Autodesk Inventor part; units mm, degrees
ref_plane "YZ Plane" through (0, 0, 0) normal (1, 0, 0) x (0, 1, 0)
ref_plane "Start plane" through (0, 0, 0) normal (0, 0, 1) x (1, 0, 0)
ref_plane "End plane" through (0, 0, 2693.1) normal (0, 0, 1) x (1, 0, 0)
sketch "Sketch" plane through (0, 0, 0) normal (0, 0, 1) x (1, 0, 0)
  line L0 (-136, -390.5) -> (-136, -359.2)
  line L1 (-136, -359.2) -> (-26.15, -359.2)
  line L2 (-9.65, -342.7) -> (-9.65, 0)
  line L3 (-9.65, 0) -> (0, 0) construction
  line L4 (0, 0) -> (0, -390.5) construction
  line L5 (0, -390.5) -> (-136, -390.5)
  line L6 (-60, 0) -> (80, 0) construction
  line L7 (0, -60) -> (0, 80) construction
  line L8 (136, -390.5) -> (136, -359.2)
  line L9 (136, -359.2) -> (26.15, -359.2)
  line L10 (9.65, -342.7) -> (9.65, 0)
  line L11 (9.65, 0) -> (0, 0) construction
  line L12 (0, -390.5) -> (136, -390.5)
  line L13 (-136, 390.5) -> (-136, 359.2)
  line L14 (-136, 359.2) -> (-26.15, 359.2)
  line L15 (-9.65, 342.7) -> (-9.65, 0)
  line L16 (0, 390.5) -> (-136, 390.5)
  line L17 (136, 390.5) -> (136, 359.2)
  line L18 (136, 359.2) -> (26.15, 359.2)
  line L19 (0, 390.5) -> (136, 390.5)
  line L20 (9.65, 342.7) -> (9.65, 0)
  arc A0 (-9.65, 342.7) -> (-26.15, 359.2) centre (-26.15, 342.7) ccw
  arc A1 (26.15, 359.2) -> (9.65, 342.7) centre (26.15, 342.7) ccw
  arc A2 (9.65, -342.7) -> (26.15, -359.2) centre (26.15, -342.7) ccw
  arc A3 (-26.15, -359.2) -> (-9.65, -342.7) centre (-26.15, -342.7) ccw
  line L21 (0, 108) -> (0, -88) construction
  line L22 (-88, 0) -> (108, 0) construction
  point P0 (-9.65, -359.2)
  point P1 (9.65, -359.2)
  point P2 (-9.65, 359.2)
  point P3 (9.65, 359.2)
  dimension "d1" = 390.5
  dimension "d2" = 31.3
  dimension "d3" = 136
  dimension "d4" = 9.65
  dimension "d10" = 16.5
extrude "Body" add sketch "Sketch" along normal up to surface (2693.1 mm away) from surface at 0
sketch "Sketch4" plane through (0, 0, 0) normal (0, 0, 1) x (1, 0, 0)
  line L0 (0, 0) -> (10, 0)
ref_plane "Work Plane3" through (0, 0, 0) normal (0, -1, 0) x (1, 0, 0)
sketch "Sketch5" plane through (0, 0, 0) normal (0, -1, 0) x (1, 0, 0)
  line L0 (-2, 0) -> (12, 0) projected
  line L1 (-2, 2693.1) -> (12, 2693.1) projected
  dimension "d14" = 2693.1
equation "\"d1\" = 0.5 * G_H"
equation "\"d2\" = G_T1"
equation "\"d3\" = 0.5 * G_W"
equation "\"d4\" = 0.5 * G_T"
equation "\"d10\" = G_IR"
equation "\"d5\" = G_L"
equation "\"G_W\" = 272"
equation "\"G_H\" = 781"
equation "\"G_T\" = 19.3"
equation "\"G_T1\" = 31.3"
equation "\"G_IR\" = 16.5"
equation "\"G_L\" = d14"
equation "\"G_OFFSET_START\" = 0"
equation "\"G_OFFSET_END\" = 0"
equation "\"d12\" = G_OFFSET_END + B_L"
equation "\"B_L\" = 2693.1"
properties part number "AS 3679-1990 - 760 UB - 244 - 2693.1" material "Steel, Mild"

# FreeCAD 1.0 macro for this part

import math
import FreeCAD as App
import Part
import Sketcher
Q = App.Units.Quantity

doc = App.newDocument("Part")
body = doc.addObject("PartDesign::Body", "Body")

sketch1 = body.newObject("Sketcher::SketchObject", "Sketch")
sketch1.AttachmentSupport = (doc.getObject("XY_Plane"), [""])
sketch1.MapMode = "FlatFace"
sketch1.addGeometry(Part.LineSegment(App.Vector(-136, -359.2, 0), App.Vector(-136, -390.5, 0)), False)
sketch1.addGeometry(Part.LineSegment(App.Vector(-136, -390.5, 0), App.Vector(136, -390.5, 0)), False)
sketch1.addGeometry(Part.LineSegment(App.Vector(136, -390.5, 0), App.Vector(136, -359.2, 0)), False)
sketch1.addGeometry(Part.LineSegment(App.Vector(136, -359.2, 0), App.Vector(26.15, -359.2, 0)), False)
sketch1.addGeometry(Part.ArcOfCircle(Part.Circle(App.Vector(26.15, -342.7, 0), App.Vector(0, 0, 1), 16.5), math.radians(180), math.radians(270)), False)
sketch1.addGeometry(Part.LineSegment(App.Vector(9.65, -342.7, 0), App.Vector(9.65, 342.7, 0)), False)
sketch1.addGeometry(Part.ArcOfCircle(Part.Circle(App.Vector(26.15, 342.7, 0), App.Vector(0, 0, 1), 16.5), math.radians(90), math.radians(180)), False)
sketch1.addGeometry(Part.LineSegment(App.Vector(26.15, 359.2, 0), App.Vector(136, 359.2, 0)), False)
sketch1.addGeometry(Part.LineSegment(App.Vector(136, 359.2, 0), App.Vector(136, 390.5, 0)), False)
sketch1.addGeometry(Part.LineSegment(App.Vector(136, 390.5, 0), App.Vector(-136, 390.5, 0)), False)
sketch1.addGeometry(Part.LineSegment(App.Vector(-136, 390.5, 0), App.Vector(-136, 359.2, 0)), False)
sketch1.addGeometry(Part.LineSegment(App.Vector(-136, 359.2, 0), App.Vector(-26.15, 359.2, 0)), False)
sketch1.addGeometry(Part.ArcOfCircle(Part.Circle(App.Vector(-26.15, 342.7, 0), App.Vector(0, 0, 1), 16.5), math.radians(0), math.radians(90)), False)
sketch1.addGeometry(Part.LineSegment(App.Vector(-9.65, 342.7, 0), App.Vector(-9.65, -342.7, 0)), False)
sketch1.addGeometry(Part.ArcOfCircle(Part.Circle(App.Vector(-26.15, -342.7, 0), App.Vector(0, 0, 1), 16.5), math.radians(-90), math.radians(0)), False)
sketch1.addGeometry(Part.LineSegment(App.Vector(-26.15, -359.2, 0), App.Vector(-136, -359.2, 0)), False)
sketch1.addConstraint(Sketcher.Constraint("Coincident", 0, 2, 1, 1))
sketch1.addConstraint(Sketcher.Constraint("Coincident", 1, 2, 2, 1))
sketch1.addConstraint(Sketcher.Constraint("Coincident", 2, 2, 3, 1))
sketch1.addConstraint(Sketcher.Constraint("Tangent", 3, 2, 4, 2))
sketch1.addConstraint(Sketcher.Constraint("Tangent", 4, 1, 5, 1))
sketch1.addConstraint(Sketcher.Constraint("Tangent", 5, 2, 6, 2))
sketch1.addConstraint(Sketcher.Constraint("Tangent", 6, 1, 7, 1))
sketch1.addConstraint(Sketcher.Constraint("Coincident", 7, 2, 8, 1))
sketch1.addConstraint(Sketcher.Constraint("Coincident", 8, 2, 9, 1))
sketch1.addConstraint(Sketcher.Constraint("Coincident", 9, 2, 10, 1))
sketch1.addConstraint(Sketcher.Constraint("Coincident", 10, 2, 11, 1))
sketch1.addConstraint(Sketcher.Constraint("Tangent", 11, 2, 12, 2))
sketch1.addConstraint(Sketcher.Constraint("Tangent", 12, 1, 13, 1))
sketch1.addConstraint(Sketcher.Constraint("Tangent", 13, 2, 14, 2))
sketch1.addConstraint(Sketcher.Constraint("Tangent", 14, 1, 15, 1))
sketch1.addConstraint(Sketcher.Constraint("Coincident", 15, 2, 0, 1))
sketch1.addConstraint(Sketcher.Constraint("Vertical", 0))
sketch1.addConstraint(Sketcher.Constraint("Horizontal", 1))
sketch1.addConstraint(Sketcher.Constraint("Vertical", 2))
sketch1.addConstraint(Sketcher.Constraint("Horizontal", 3))
sketch1.addConstraint(Sketcher.Constraint("Vertical", 5))
sketch1.addConstraint(Sketcher.Constraint("Horizontal", 7))
sketch1.addConstraint(Sketcher.Constraint("Vertical", 8))
sketch1.addConstraint(Sketcher.Constraint("Horizontal", 9))
sketch1.addConstraint(Sketcher.Constraint("Vertical", 10))
sketch1.addConstraint(Sketcher.Constraint("Horizontal", 11))
sketch1.addConstraint(Sketcher.Constraint("Vertical", 13))
sketch1.addConstraint(Sketcher.Constraint("Horizontal", 15))
sketch1.addConstraint(Sketcher.Constraint("Equal", 4, 6))
sketch1.addConstraint(Sketcher.Constraint("Equal", 6, 12))
sketch1.addConstraint(Sketcher.Constraint("Equal", 12, 14))
sketch1.addConstraint(Sketcher.Constraint("Symmetric", 4, 3, 12, 3, -1, 1))
sketch1.addConstraint(Sketcher.Constraint("Symmetric", 0, 2, 8, 2, -1, 1))
sketch1.addConstraint(Sketcher.Constraint("Symmetric", 7, 2, 10, 2, -2))
sketch1.addConstraint(Sketcher.Constraint("Symmetric", 2, 2, 15, 2, -2))
sketch1.addConstraint(Sketcher.Constraint("Radius", 4, Q("16.5 mm")))
sketch1.addConstraint(Sketcher.Constraint("DistanceY", 0, 2, 0, 1, Q("31.3 mm")))
sketch1.addConstraint(Sketcher.Constraint("DistanceX", 0, 2, -1, 1, Q("136 mm")))
sketch1.addConstraint(Sketcher.Constraint("DistanceY", 0, 2, -1, 1, Q("390.5 mm")))
sketch1.addConstraint(Sketcher.Constraint("DistanceX", -1, 1, 4, 1, Q("9.65 mm")))
pad1 = body.newObject("PartDesign::Pad", "Pad")
pad1.Profile = sketch1
pad1.Length = 2693.1

doc.recompute()
